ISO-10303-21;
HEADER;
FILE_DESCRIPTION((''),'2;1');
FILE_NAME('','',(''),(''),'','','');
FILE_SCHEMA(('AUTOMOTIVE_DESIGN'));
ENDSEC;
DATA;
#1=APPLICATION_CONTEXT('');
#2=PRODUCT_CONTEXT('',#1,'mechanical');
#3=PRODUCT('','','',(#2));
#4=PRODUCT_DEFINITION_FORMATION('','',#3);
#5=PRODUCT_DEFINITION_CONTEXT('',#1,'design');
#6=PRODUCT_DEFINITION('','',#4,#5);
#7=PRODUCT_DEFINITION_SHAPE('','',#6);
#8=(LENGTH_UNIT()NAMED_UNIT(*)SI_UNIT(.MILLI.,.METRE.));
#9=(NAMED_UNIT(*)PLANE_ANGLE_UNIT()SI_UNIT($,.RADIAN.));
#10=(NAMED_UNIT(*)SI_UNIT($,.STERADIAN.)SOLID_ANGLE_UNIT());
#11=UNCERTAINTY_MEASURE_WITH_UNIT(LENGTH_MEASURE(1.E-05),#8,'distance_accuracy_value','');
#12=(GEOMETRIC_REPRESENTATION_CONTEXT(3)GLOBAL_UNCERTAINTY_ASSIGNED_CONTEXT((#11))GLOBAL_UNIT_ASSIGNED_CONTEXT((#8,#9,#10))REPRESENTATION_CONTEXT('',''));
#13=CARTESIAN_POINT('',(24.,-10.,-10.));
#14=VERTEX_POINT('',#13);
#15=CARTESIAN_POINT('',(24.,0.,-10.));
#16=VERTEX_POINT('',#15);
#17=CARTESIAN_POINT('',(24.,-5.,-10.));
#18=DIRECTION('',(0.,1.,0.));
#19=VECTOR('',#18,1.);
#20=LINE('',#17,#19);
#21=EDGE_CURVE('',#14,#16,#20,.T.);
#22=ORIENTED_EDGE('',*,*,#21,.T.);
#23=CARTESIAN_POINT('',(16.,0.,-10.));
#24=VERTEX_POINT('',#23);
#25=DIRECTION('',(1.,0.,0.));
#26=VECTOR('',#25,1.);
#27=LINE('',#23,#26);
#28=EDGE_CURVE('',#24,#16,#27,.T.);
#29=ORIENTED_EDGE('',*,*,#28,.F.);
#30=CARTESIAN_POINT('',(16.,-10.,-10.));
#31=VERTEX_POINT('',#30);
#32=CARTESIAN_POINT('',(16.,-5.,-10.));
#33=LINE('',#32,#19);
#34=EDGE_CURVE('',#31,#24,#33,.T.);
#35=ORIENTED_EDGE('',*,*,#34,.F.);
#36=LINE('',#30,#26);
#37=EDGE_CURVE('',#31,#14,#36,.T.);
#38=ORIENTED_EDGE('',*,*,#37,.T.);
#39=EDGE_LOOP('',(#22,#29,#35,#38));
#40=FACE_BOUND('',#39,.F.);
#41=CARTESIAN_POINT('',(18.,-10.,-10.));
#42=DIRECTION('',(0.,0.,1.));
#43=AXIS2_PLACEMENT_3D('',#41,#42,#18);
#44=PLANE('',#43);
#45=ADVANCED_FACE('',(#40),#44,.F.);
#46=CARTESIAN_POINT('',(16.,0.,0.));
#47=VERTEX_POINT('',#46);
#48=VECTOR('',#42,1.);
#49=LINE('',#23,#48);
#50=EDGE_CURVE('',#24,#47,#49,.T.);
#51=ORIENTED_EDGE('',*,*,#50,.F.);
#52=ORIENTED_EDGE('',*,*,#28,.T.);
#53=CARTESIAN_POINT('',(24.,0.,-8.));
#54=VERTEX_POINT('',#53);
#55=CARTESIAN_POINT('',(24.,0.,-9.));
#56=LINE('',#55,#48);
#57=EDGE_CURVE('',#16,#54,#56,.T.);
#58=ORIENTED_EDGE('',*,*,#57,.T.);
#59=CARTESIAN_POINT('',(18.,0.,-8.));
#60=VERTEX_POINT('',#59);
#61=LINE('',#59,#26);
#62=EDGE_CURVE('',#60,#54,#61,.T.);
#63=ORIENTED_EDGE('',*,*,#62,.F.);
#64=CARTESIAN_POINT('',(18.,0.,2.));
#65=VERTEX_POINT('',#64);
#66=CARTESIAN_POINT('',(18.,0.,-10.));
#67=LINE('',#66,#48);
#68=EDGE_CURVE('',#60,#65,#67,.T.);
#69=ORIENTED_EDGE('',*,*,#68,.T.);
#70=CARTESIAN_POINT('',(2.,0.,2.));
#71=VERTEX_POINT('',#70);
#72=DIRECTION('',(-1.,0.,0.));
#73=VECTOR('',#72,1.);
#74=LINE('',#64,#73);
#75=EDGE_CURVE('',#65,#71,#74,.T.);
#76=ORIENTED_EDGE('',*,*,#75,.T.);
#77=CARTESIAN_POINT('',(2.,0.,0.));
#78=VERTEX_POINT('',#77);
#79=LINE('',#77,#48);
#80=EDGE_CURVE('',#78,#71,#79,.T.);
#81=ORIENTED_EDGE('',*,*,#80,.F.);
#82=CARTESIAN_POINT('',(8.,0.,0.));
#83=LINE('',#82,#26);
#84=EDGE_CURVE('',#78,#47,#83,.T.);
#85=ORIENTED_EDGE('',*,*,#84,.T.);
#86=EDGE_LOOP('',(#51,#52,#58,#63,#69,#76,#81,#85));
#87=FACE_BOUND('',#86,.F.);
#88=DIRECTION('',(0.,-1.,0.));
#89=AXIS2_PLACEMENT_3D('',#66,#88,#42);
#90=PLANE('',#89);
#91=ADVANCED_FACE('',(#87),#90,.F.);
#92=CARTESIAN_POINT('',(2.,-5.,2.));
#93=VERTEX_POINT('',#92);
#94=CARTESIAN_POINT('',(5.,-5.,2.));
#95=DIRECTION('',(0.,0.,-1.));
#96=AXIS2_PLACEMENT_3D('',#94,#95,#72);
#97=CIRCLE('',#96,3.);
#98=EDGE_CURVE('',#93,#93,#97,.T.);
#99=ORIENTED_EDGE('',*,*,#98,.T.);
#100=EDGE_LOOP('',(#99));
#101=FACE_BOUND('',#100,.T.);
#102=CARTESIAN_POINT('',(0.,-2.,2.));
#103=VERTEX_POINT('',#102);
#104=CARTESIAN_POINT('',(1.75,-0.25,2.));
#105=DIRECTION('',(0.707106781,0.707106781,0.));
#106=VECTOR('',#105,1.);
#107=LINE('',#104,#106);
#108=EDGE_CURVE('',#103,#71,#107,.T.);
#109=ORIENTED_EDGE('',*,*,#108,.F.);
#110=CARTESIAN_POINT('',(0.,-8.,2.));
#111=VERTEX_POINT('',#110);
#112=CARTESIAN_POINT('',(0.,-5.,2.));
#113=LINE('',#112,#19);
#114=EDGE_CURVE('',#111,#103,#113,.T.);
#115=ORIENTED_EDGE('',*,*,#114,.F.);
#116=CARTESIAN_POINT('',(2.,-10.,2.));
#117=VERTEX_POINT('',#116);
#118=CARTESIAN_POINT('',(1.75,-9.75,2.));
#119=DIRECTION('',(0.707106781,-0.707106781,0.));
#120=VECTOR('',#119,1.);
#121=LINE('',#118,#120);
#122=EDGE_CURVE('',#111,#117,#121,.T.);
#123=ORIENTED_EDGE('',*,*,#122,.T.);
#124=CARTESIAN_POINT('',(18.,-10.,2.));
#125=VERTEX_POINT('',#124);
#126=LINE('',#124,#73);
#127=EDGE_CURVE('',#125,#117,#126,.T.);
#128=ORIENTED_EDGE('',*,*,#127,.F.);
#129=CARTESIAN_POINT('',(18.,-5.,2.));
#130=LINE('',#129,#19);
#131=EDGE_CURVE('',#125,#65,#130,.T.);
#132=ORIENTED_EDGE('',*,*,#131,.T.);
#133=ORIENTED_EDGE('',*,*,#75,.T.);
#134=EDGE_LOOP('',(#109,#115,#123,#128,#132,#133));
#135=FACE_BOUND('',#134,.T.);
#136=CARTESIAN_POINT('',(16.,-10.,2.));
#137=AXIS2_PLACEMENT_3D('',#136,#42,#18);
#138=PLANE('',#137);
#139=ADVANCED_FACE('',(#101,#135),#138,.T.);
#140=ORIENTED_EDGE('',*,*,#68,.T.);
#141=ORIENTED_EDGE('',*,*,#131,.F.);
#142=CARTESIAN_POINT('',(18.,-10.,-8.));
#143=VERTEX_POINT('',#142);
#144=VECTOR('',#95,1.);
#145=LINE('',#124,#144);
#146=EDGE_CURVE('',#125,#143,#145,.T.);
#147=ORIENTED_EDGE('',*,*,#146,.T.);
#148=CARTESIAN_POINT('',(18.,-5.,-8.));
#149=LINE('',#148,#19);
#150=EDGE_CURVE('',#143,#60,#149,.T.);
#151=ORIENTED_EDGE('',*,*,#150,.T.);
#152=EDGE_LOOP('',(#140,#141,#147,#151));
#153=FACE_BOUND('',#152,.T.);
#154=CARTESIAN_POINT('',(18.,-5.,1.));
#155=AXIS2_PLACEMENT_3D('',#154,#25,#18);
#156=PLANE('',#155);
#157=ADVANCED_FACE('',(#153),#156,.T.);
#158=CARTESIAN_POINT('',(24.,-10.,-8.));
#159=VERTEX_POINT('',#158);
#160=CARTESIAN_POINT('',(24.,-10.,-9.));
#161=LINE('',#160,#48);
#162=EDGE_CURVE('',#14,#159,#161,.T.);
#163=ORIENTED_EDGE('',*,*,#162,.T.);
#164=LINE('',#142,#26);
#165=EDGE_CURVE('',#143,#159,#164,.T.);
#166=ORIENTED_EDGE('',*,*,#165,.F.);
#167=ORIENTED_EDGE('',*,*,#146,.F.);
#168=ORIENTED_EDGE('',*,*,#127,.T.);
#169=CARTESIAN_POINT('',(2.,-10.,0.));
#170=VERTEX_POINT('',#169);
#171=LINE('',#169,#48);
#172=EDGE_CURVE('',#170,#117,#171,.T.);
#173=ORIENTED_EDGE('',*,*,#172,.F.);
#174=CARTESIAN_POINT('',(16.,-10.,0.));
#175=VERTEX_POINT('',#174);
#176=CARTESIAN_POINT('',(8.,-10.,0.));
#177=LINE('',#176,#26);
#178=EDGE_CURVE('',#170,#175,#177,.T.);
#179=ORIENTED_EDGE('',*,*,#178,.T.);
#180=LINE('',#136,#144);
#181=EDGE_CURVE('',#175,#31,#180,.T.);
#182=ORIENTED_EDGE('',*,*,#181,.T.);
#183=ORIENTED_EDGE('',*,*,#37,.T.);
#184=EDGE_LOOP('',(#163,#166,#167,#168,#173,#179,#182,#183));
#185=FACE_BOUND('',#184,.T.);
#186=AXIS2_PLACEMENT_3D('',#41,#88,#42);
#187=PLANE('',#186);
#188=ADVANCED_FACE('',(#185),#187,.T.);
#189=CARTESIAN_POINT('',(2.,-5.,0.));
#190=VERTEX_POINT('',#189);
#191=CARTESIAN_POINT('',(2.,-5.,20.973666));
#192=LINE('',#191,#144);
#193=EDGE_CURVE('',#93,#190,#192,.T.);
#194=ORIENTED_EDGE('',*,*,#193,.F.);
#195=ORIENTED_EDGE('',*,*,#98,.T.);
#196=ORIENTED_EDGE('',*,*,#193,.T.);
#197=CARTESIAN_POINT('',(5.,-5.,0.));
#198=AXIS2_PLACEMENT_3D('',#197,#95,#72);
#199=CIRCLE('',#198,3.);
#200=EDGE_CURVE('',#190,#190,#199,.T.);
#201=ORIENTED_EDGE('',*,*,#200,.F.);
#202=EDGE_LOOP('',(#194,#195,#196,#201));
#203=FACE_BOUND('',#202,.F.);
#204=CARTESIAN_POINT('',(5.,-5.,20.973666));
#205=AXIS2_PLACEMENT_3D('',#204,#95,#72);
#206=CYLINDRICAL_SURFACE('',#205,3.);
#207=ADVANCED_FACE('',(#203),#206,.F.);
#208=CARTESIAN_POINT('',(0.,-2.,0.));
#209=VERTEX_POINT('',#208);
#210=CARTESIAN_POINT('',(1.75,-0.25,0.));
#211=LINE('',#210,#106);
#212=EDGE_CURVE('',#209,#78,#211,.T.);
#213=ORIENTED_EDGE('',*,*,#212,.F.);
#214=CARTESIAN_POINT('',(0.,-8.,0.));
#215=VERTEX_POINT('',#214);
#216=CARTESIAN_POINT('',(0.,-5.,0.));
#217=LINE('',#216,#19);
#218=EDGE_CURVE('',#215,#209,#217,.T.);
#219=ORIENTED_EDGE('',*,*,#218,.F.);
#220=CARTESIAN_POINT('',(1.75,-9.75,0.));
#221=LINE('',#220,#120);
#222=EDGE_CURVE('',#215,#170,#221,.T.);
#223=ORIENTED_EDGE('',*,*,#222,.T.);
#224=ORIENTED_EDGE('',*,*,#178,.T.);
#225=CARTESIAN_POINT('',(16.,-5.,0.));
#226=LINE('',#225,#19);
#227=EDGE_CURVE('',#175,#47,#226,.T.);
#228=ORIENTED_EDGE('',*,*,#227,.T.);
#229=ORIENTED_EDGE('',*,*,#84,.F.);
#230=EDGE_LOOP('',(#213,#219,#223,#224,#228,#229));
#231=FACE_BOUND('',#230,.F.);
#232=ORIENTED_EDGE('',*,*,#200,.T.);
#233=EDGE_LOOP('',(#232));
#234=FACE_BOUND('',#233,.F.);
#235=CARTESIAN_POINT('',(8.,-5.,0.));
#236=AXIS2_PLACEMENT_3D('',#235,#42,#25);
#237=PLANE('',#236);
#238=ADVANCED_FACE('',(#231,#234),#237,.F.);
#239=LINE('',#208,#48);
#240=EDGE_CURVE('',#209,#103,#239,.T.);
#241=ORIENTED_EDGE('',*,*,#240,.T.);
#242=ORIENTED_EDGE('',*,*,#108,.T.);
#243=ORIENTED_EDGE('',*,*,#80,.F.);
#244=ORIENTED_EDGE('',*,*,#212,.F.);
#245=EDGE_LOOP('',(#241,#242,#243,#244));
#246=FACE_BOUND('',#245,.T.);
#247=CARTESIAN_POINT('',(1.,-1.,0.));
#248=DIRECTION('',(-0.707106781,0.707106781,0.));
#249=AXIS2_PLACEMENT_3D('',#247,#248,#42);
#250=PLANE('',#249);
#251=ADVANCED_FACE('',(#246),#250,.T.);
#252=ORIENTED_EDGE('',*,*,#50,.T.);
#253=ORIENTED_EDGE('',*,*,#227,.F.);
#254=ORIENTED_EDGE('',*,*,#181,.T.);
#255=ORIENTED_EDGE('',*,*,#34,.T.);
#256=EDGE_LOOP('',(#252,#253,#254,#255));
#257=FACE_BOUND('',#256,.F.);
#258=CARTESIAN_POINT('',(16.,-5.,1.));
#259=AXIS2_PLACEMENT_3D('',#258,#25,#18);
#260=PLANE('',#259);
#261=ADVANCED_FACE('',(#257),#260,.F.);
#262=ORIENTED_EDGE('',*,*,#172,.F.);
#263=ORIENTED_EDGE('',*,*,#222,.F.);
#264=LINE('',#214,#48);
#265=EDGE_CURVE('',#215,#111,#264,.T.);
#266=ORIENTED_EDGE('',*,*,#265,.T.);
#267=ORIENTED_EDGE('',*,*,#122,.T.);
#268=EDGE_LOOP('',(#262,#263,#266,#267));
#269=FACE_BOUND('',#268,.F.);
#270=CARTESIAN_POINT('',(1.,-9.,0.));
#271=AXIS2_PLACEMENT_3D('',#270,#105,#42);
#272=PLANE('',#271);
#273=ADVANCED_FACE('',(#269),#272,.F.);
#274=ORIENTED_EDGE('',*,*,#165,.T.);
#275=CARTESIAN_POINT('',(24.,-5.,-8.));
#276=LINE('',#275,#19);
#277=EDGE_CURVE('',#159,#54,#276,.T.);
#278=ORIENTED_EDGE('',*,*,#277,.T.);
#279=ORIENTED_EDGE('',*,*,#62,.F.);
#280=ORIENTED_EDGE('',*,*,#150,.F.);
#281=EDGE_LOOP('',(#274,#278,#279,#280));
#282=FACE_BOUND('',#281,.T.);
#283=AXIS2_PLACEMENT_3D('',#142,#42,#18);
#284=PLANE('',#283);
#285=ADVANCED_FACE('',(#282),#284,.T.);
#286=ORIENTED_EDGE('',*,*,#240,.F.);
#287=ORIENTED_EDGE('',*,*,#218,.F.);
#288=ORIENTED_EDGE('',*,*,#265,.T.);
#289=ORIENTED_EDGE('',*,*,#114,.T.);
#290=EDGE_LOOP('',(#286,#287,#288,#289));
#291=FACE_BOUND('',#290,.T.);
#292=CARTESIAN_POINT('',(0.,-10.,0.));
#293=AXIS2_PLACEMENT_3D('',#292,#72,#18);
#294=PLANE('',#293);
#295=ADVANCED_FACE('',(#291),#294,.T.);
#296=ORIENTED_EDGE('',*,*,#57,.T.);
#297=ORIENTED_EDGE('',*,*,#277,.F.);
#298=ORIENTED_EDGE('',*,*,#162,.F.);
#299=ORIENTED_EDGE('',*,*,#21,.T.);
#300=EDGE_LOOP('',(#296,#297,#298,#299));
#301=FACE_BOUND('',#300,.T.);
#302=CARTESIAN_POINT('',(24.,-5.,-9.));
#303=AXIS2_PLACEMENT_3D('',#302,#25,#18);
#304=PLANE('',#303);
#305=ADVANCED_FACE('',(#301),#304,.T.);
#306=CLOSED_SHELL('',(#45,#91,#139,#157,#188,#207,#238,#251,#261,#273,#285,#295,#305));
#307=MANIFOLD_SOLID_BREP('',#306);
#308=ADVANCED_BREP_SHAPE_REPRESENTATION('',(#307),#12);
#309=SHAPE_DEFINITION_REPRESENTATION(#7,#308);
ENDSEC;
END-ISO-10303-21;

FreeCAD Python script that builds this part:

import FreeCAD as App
import Part
import Sketcher
from FreeCAD import Vector
Q = App.Units.Quantity


def edges_at(feature, points):
    """Names of the edges that pass closest to the given points."""
    edges = feature.Shape.Edges
    near = lambda p: min(range(len(edges)), key=lambda i: edges[i].distToShape(Part.Vertex(*p))[0])
    return sorted({f"Edge{near(p) + 1}" for p in points})


def add_polygon(sketch, points):
    """Adds a closed chain of lines whose ends are joined by coincident constraints."""
    first, n = sketch.GeometryCount, len(points)
    for a, b in zip(points, points[1:] + points[:1]):
        sketch.addGeometry(Part.LineSegment(App.Vector(*a, 0), App.Vector(*b, 0)), False)
    for i in range(n):
        sketch.addConstraint(Sketcher.Constraint("Coincident", first + i, 2, first + (i + 1) % n, 1))

doc = App.newDocument("Part")
body = doc.addObject("PartDesign::Body", "Body")

# Sketch on XY plane
sketch1 = doc.addObject("Sketcher::SketchObject", "Sketch")
body.addObject(sketch1)
sketch1.AttachmentSupport = (doc.XY_Plane, [""])
sketch1.MapMode = "FlatFace"
add_polygon(sketch1, [(0, 0), (0, -10), (16, -10), (16, 0)])  # lines 0-3
sketch1.addConstraint([
    Sketcher.Constraint("Vertical", 0),
    Sketcher.Constraint("Horizontal", 1),
    Sketcher.Constraint("Vertical", 2),
    Sketcher.Constraint("Horizontal", 3),
    Sketcher.Constraint("Coincident", 3, 2, -1, 1),
    Sketcher.Constraint("DistanceX", 1, 1, 1, 2, Q("16 mm")),
    Sketcher.Constraint("DistanceY", 0, 2, 0, 1, Q("10 mm")),
])
pad1 = doc.addObject("PartDesign::Pad", "Pad")
body.addObject(pad1)
pad1.Profile = sketch1
pad1.Length = 2
doc.recompute()

chamfer = doc.addObject("PartDesign::Chamfer", "Chamfer")
body.addObject(chamfer)
chamfer.Base = (pad1, edges_at(pad1, [(0, -10, 1), (0, 0, 1)]))
chamfer.Size = 2

# Sketch on XY plane
sketch2 = doc.addObject("Sketcher::SketchObject", "Sketch001")
body.addObject(sketch2)
sketch2.AttachmentSupport = (doc.XY_Plane, [""])
sketch2.MapMode = "FlatFace"
sketch2.AttachmentOffset = App.Placement(Vector(0, 0, 2), App.Rotation())
sketch2.addGeometry(Part.Circle(Vector(5, -5, 0), Vector(0, 0, 1), 3), False)
sketch2.addConstraint([
    Sketcher.Constraint("Diameter", 0, Q("6 mm")),
    Sketcher.Constraint("DistanceX", -1, 1, 0, 3, Q("5 mm")),
    Sketcher.Constraint("DistanceY", 0, 3, -1, 1, Q("5 mm")),
])
doc.recompute()
hole = doc.addObject("PartDesign::Hole", "Hole")
body.addObject(hole)
hole.Profile = sketch2
hole.ThreadType = "None"
hole.Diameter = 6
hole.DepthType = "ThroughAll"

# Sketch on YZ plane
sketch3 = doc.addObject("Sketcher::SketchObject", "Sketch002")
body.addObject(sketch3)
sketch3.AttachmentSupport = (doc.YZ_Plane, [""])
sketch3.MapMode = "FlatFace"
sketch3.AttachmentOffset = App.Placement(Vector(0, 0, 16), App.Rotation())
add_polygon(sketch3, [(-10, 2), (-10, -10), (0, -10), (0, 2)])  # lines 0-3
sketch3.addConstraint([
    Sketcher.Constraint("Vertical", 0),
    Sketcher.Constraint("Horizontal", 1),
    Sketcher.Constraint("Vertical", 2),
    Sketcher.Constraint("Horizontal", 3),
    Sketcher.Constraint("PointOnObject", 1, 2, -2),
    Sketcher.Constraint("DistanceX", 1, 1, 1, 2, Q("10 mm")),
    Sketcher.Constraint("DistanceY", 0, 2, 0, 1, Q("12 mm")),
    Sketcher.Constraint("DistanceY", 0, 2, -1, 1, Q("10 mm")),
])
pad2 = doc.addObject("PartDesign::Pad", "Pad001")
body.addObject(pad2)
pad2.Profile = sketch3
pad2.Length = 2

# Sketch on YZ plane
sketch4 = doc.addObject("Sketcher::SketchObject", "Sketch003")
body.addObject(sketch4)
sketch4.AttachmentSupport = (doc.YZ_Plane, [""])
sketch4.MapMode = "FlatFace"
sketch4.AttachmentOffset = App.Placement(Vector(0, 0, 18), App.Rotation())
add_polygon(sketch4, [(-10, -8), (-10, -10), (0, -10), (0, -8)])  # lines 0-3
sketch4.addConstraint([
    Sketcher.Constraint("Vertical", 0),
    Sketcher.Constraint("Horizontal", 1),
    Sketcher.Constraint("Vertical", 2),
    Sketcher.Constraint("Horizontal", 3),
    Sketcher.Constraint("PointOnObject", 1, 2, -2),
    Sketcher.Constraint("DistanceX", 1, 1, 1, 2, Q("10 mm")),
    Sketcher.Constraint("DistanceY", 0, 2, 0, 1, Q("2 mm")),
    Sketcher.Constraint("DistanceY", 0, 2, -1, 1, Q("10 mm")),
])
pad3 = doc.addObject("PartDesign::Pad", "Pad002")
body.addObject(pad3)
pad3.Profile = sketch4
pad3.Length = 6

doc.recompute()
